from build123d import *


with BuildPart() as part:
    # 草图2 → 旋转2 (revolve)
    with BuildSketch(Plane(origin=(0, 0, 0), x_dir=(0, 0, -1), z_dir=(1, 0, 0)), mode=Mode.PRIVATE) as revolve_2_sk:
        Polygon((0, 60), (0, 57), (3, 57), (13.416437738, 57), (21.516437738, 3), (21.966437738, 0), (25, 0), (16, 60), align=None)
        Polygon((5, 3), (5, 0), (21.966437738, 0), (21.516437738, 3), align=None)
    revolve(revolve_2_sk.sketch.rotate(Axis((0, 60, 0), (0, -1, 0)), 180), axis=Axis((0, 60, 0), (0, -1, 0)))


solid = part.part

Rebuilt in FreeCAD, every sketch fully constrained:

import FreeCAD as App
import Part
import Sketcher
Q = App.Units.Quantity

doc = App.newDocument("Part")
body = doc.addObject("PartDesign::Body", "Body")

sketch1 = body.newObject("Sketcher::SketchObject", "Sketch")
sketch1.AttachmentSupport = (doc.getObject("YZ_Plane"), [""])
sketch1.MapMode = "FlatFace"
sketch1.addGeometry([
    Part.LineSegment(App.Vector(60, 0, 0), App.Vector(57, 0, 0)),
    Part.LineSegment(App.Vector(57, 0, 0), App.Vector(57, -13.416438, 0)),
    Part.LineSegment(App.Vector(57, -13.416438, 0), App.Vector(3, -21.516438, 0)),
    Part.LineSegment(App.Vector(3, -21.516438, 0), App.Vector(3, -5, 0)),
    Part.LineSegment(App.Vector(3, -5, 0), App.Vector(0, -5, 0)),
    Part.LineSegment(App.Vector(0, -5, 0), App.Vector(0, -25, 0)),
    Part.LineSegment(App.Vector(0, -25, 0), App.Vector(60, -16, 0)),
    Part.LineSegment(App.Vector(60, -16, 0), App.Vector(60, 0, 0)),
], False)
sketch1.addConstraint([
    Sketcher.Constraint("Coincident", 0, 2, 1, 1),
    Sketcher.Constraint("Coincident", 1, 2, 2, 1),
    Sketcher.Constraint("Coincident", 2, 2, 3, 1),
    Sketcher.Constraint("Coincident", 3, 2, 4, 1),
    Sketcher.Constraint("Coincident", 4, 2, 5, 1),
    Sketcher.Constraint("Coincident", 5, 2, 6, 1),
    Sketcher.Constraint("Coincident", 6, 2, 7, 1),
    Sketcher.Constraint("Coincident", 7, 2, 0, 1),
    Sketcher.Constraint("Horizontal", 0),
    Sketcher.Constraint("Vertical", 1),
    Sketcher.Constraint("Vertical", 3),
    Sketcher.Constraint("Horizontal", 4),
    Sketcher.Constraint("Vertical", 5),
    Sketcher.Constraint("Vertical", 7),
    Sketcher.Constraint("PointOnObject", 0, 2, -1),
    Sketcher.Constraint("PointOnObject", 4, 2, -2),
    Sketcher.Constraint("Parallel", 2, 6),
    Sketcher.Constraint("Equal", 0, 4),
    Sketcher.Constraint("DistanceX", 0, 2, 0, 1, Q("3 mm")),
    Sketcher.Constraint("DistanceY", 5, 2, 5, 1, Q("20 mm")),
    Sketcher.Constraint("DistanceY", 7, 1, 7, 2, Q("16 mm")),
    Sketcher.Constraint("DistanceX", -1, 1, 0, 2, Q("57 mm")),
    Sketcher.Constraint("DistanceY", 3, 2, -1, 1, Q("5 mm")),
    Sketcher.Constraint("DistanceY", 1, 2, 1, 1, Q("13.416438 mm")),
])
revolution = body.newObject("PartDesign::Revolution", "Revolution")
revolution.Profile = sketch1
revolution.ReferenceAxis = (sketch1, ["H_Axis"])
revolution.Angle = 360

doc.recompute()
